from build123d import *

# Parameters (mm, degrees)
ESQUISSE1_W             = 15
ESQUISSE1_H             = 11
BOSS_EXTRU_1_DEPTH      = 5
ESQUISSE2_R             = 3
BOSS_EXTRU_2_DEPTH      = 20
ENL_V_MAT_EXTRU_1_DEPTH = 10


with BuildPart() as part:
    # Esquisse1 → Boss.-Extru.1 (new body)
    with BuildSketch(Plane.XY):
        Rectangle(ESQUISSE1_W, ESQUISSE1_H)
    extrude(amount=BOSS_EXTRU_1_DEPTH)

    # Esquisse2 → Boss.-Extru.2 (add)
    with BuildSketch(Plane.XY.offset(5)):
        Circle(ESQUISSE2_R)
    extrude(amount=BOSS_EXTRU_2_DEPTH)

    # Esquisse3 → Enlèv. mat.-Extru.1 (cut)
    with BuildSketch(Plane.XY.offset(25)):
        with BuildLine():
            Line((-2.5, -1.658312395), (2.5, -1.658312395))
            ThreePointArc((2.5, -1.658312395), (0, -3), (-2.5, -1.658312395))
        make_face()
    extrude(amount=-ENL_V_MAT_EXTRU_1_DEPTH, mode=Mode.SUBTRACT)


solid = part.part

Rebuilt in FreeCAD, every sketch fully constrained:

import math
import FreeCAD as App
import Part
import Sketcher
from FreeCAD import Vector


def add_polygon(sketch, points):
    """Adds a closed chain of lines whose ends are joined by coincident constraints."""
    first, n = sketch.GeometryCount, len(points)
    for a, b in zip(points, points[1:] + points[:1]):
        sketch.addGeometry(Part.LineSegment(App.Vector(*a, 0), App.Vector(*b, 0)), False)
    for i in range(n):
        sketch.addConstraint(Sketcher.Constraint("Coincident", first + i, 2, first + (i + 1) % n, 1))

doc = App.newDocument("Part")
params = doc.addObject("Spreadsheet::Sheet", "Params")
for row, (alias, value) in enumerate([
    ("sketch1_width", "15 mm"),
    ("sketch1_height", "11 mm"),
    ("pad1_length", "5 mm"),
    ("sketch2_diameter", "6 mm"),
    ("pad2_length", "20 mm"),
    ("sketch3_radius", "3 mm"),
    ("sketch3_width", "5 mm"),
    ("pocket1_length", "10 mm"),
], start=1):
    params.set(f"A{row}", alias)
    params.set(f"B{row}", "=" + value)
    params.setAlias(f"B{row}", alias)

body = doc.addObject("PartDesign::Body", "Body")

sketch1 = body.newObject("Sketcher::SketchObject", "Sketch")
sketch1.AttachmentSupport = (doc.getObject("XY_Plane"), [""])
sketch1.MapMode = "FlatFace"
add_polygon(sketch1, [(-7.5, 5.5), (-7.5, -5.5), (7.5, -5.5), (7.5, 5.5)])
sketch1.addConstraint([
    Sketcher.Constraint("Vertical", 0),
    Sketcher.Constraint("Horizontal", 1),
    Sketcher.Constraint("Vertical", 2),
    Sketcher.Constraint("Horizontal", 3),
    Sketcher.Constraint("Symmetric", 0, 2, 2, 2, -1, 1),
    Sketcher.Constraint("DistanceX", 1, 1, 1, 2, 15.0),
    Sketcher.Constraint("DistanceY", 0, 2, 0, 1, 11.0),
])
sketch1.setExpression("Constraints[9]", "Params.sketch1_width")
sketch1.setExpression("Constraints[10]", "Params.sketch1_height")
pad1 = body.newObject("PartDesign::Pad", "Pad")
pad1.Profile = sketch1
pad1.setExpression("Length", "Params.pad1_length")

sketch2 = body.newObject("Sketcher::SketchObject", "Sketch001")
sketch2.AttachmentSupport = (doc.getObject("XY_Plane"), [""])
sketch2.MapMode = "FlatFace"
sketch2.AttachmentOffset = App.Placement(Vector(0, 0, 5), App.Rotation())
sketch2.addGeometry(Part.Circle(Vector(0, 0, 0), Vector(0, 0, 1), 3), False)
sketch2.addConstraint([
    Sketcher.Constraint("Coincident", 0, 3, -1, 1),
    Sketcher.Constraint("Diameter", 0, 6.0),
])
sketch2.setExpression("Constraints[1]", "Params.sketch2_diameter")
pad2 = body.newObject("PartDesign::Pad", "Pad001")
pad2.Profile = sketch2
pad2.setExpression("Length", "Params.pad2_length")

sketch3 = body.newObject("Sketcher::SketchObject", "Sketch002")
sketch3.AttachmentSupport = (doc.getObject("XY_Plane"), [""])
sketch3.MapMode = "FlatFace"
sketch3.AttachmentOffset = App.Placement(Vector(0, 0, 25), App.Rotation())
sketch3.addGeometry([
    Part.LineSegment(Vector(2.5, -1.658312, 0), Vector(-2.5, -1.658312, 0)),
    Part.ArcOfCircle(Part.Circle(Vector(0, 0, 0), Vector(0, 0, 1), 3), math.radians(-146.44269), math.radians(-33.55731)),
], False)
sketch3.addConstraint([
    Sketcher.Constraint("Coincident", 0, 1, 1, 2),
    Sketcher.Constraint("Coincident", 1, 1, 0, 2),
    Sketcher.Constraint("Horizontal", 0),
    Sketcher.Constraint("Coincident", 1, 3, -1, 1),
    Sketcher.Constraint("Radius", 1, 3.0),
    Sketcher.Constraint("DistanceX", 0, 2, 0, 1, 5.0),
])
sketch3.setExpression("Constraints[4]", "Params.sketch3_radius")
sketch3.setExpression("Constraints[5]", "Params.sketch3_width")
pocket1 = body.newObject("PartDesign::Pocket", "Pocket")
pocket1.Profile = sketch3
pocket1.setExpression("Length", "Params.pocket1_length")

doc.recompute()
